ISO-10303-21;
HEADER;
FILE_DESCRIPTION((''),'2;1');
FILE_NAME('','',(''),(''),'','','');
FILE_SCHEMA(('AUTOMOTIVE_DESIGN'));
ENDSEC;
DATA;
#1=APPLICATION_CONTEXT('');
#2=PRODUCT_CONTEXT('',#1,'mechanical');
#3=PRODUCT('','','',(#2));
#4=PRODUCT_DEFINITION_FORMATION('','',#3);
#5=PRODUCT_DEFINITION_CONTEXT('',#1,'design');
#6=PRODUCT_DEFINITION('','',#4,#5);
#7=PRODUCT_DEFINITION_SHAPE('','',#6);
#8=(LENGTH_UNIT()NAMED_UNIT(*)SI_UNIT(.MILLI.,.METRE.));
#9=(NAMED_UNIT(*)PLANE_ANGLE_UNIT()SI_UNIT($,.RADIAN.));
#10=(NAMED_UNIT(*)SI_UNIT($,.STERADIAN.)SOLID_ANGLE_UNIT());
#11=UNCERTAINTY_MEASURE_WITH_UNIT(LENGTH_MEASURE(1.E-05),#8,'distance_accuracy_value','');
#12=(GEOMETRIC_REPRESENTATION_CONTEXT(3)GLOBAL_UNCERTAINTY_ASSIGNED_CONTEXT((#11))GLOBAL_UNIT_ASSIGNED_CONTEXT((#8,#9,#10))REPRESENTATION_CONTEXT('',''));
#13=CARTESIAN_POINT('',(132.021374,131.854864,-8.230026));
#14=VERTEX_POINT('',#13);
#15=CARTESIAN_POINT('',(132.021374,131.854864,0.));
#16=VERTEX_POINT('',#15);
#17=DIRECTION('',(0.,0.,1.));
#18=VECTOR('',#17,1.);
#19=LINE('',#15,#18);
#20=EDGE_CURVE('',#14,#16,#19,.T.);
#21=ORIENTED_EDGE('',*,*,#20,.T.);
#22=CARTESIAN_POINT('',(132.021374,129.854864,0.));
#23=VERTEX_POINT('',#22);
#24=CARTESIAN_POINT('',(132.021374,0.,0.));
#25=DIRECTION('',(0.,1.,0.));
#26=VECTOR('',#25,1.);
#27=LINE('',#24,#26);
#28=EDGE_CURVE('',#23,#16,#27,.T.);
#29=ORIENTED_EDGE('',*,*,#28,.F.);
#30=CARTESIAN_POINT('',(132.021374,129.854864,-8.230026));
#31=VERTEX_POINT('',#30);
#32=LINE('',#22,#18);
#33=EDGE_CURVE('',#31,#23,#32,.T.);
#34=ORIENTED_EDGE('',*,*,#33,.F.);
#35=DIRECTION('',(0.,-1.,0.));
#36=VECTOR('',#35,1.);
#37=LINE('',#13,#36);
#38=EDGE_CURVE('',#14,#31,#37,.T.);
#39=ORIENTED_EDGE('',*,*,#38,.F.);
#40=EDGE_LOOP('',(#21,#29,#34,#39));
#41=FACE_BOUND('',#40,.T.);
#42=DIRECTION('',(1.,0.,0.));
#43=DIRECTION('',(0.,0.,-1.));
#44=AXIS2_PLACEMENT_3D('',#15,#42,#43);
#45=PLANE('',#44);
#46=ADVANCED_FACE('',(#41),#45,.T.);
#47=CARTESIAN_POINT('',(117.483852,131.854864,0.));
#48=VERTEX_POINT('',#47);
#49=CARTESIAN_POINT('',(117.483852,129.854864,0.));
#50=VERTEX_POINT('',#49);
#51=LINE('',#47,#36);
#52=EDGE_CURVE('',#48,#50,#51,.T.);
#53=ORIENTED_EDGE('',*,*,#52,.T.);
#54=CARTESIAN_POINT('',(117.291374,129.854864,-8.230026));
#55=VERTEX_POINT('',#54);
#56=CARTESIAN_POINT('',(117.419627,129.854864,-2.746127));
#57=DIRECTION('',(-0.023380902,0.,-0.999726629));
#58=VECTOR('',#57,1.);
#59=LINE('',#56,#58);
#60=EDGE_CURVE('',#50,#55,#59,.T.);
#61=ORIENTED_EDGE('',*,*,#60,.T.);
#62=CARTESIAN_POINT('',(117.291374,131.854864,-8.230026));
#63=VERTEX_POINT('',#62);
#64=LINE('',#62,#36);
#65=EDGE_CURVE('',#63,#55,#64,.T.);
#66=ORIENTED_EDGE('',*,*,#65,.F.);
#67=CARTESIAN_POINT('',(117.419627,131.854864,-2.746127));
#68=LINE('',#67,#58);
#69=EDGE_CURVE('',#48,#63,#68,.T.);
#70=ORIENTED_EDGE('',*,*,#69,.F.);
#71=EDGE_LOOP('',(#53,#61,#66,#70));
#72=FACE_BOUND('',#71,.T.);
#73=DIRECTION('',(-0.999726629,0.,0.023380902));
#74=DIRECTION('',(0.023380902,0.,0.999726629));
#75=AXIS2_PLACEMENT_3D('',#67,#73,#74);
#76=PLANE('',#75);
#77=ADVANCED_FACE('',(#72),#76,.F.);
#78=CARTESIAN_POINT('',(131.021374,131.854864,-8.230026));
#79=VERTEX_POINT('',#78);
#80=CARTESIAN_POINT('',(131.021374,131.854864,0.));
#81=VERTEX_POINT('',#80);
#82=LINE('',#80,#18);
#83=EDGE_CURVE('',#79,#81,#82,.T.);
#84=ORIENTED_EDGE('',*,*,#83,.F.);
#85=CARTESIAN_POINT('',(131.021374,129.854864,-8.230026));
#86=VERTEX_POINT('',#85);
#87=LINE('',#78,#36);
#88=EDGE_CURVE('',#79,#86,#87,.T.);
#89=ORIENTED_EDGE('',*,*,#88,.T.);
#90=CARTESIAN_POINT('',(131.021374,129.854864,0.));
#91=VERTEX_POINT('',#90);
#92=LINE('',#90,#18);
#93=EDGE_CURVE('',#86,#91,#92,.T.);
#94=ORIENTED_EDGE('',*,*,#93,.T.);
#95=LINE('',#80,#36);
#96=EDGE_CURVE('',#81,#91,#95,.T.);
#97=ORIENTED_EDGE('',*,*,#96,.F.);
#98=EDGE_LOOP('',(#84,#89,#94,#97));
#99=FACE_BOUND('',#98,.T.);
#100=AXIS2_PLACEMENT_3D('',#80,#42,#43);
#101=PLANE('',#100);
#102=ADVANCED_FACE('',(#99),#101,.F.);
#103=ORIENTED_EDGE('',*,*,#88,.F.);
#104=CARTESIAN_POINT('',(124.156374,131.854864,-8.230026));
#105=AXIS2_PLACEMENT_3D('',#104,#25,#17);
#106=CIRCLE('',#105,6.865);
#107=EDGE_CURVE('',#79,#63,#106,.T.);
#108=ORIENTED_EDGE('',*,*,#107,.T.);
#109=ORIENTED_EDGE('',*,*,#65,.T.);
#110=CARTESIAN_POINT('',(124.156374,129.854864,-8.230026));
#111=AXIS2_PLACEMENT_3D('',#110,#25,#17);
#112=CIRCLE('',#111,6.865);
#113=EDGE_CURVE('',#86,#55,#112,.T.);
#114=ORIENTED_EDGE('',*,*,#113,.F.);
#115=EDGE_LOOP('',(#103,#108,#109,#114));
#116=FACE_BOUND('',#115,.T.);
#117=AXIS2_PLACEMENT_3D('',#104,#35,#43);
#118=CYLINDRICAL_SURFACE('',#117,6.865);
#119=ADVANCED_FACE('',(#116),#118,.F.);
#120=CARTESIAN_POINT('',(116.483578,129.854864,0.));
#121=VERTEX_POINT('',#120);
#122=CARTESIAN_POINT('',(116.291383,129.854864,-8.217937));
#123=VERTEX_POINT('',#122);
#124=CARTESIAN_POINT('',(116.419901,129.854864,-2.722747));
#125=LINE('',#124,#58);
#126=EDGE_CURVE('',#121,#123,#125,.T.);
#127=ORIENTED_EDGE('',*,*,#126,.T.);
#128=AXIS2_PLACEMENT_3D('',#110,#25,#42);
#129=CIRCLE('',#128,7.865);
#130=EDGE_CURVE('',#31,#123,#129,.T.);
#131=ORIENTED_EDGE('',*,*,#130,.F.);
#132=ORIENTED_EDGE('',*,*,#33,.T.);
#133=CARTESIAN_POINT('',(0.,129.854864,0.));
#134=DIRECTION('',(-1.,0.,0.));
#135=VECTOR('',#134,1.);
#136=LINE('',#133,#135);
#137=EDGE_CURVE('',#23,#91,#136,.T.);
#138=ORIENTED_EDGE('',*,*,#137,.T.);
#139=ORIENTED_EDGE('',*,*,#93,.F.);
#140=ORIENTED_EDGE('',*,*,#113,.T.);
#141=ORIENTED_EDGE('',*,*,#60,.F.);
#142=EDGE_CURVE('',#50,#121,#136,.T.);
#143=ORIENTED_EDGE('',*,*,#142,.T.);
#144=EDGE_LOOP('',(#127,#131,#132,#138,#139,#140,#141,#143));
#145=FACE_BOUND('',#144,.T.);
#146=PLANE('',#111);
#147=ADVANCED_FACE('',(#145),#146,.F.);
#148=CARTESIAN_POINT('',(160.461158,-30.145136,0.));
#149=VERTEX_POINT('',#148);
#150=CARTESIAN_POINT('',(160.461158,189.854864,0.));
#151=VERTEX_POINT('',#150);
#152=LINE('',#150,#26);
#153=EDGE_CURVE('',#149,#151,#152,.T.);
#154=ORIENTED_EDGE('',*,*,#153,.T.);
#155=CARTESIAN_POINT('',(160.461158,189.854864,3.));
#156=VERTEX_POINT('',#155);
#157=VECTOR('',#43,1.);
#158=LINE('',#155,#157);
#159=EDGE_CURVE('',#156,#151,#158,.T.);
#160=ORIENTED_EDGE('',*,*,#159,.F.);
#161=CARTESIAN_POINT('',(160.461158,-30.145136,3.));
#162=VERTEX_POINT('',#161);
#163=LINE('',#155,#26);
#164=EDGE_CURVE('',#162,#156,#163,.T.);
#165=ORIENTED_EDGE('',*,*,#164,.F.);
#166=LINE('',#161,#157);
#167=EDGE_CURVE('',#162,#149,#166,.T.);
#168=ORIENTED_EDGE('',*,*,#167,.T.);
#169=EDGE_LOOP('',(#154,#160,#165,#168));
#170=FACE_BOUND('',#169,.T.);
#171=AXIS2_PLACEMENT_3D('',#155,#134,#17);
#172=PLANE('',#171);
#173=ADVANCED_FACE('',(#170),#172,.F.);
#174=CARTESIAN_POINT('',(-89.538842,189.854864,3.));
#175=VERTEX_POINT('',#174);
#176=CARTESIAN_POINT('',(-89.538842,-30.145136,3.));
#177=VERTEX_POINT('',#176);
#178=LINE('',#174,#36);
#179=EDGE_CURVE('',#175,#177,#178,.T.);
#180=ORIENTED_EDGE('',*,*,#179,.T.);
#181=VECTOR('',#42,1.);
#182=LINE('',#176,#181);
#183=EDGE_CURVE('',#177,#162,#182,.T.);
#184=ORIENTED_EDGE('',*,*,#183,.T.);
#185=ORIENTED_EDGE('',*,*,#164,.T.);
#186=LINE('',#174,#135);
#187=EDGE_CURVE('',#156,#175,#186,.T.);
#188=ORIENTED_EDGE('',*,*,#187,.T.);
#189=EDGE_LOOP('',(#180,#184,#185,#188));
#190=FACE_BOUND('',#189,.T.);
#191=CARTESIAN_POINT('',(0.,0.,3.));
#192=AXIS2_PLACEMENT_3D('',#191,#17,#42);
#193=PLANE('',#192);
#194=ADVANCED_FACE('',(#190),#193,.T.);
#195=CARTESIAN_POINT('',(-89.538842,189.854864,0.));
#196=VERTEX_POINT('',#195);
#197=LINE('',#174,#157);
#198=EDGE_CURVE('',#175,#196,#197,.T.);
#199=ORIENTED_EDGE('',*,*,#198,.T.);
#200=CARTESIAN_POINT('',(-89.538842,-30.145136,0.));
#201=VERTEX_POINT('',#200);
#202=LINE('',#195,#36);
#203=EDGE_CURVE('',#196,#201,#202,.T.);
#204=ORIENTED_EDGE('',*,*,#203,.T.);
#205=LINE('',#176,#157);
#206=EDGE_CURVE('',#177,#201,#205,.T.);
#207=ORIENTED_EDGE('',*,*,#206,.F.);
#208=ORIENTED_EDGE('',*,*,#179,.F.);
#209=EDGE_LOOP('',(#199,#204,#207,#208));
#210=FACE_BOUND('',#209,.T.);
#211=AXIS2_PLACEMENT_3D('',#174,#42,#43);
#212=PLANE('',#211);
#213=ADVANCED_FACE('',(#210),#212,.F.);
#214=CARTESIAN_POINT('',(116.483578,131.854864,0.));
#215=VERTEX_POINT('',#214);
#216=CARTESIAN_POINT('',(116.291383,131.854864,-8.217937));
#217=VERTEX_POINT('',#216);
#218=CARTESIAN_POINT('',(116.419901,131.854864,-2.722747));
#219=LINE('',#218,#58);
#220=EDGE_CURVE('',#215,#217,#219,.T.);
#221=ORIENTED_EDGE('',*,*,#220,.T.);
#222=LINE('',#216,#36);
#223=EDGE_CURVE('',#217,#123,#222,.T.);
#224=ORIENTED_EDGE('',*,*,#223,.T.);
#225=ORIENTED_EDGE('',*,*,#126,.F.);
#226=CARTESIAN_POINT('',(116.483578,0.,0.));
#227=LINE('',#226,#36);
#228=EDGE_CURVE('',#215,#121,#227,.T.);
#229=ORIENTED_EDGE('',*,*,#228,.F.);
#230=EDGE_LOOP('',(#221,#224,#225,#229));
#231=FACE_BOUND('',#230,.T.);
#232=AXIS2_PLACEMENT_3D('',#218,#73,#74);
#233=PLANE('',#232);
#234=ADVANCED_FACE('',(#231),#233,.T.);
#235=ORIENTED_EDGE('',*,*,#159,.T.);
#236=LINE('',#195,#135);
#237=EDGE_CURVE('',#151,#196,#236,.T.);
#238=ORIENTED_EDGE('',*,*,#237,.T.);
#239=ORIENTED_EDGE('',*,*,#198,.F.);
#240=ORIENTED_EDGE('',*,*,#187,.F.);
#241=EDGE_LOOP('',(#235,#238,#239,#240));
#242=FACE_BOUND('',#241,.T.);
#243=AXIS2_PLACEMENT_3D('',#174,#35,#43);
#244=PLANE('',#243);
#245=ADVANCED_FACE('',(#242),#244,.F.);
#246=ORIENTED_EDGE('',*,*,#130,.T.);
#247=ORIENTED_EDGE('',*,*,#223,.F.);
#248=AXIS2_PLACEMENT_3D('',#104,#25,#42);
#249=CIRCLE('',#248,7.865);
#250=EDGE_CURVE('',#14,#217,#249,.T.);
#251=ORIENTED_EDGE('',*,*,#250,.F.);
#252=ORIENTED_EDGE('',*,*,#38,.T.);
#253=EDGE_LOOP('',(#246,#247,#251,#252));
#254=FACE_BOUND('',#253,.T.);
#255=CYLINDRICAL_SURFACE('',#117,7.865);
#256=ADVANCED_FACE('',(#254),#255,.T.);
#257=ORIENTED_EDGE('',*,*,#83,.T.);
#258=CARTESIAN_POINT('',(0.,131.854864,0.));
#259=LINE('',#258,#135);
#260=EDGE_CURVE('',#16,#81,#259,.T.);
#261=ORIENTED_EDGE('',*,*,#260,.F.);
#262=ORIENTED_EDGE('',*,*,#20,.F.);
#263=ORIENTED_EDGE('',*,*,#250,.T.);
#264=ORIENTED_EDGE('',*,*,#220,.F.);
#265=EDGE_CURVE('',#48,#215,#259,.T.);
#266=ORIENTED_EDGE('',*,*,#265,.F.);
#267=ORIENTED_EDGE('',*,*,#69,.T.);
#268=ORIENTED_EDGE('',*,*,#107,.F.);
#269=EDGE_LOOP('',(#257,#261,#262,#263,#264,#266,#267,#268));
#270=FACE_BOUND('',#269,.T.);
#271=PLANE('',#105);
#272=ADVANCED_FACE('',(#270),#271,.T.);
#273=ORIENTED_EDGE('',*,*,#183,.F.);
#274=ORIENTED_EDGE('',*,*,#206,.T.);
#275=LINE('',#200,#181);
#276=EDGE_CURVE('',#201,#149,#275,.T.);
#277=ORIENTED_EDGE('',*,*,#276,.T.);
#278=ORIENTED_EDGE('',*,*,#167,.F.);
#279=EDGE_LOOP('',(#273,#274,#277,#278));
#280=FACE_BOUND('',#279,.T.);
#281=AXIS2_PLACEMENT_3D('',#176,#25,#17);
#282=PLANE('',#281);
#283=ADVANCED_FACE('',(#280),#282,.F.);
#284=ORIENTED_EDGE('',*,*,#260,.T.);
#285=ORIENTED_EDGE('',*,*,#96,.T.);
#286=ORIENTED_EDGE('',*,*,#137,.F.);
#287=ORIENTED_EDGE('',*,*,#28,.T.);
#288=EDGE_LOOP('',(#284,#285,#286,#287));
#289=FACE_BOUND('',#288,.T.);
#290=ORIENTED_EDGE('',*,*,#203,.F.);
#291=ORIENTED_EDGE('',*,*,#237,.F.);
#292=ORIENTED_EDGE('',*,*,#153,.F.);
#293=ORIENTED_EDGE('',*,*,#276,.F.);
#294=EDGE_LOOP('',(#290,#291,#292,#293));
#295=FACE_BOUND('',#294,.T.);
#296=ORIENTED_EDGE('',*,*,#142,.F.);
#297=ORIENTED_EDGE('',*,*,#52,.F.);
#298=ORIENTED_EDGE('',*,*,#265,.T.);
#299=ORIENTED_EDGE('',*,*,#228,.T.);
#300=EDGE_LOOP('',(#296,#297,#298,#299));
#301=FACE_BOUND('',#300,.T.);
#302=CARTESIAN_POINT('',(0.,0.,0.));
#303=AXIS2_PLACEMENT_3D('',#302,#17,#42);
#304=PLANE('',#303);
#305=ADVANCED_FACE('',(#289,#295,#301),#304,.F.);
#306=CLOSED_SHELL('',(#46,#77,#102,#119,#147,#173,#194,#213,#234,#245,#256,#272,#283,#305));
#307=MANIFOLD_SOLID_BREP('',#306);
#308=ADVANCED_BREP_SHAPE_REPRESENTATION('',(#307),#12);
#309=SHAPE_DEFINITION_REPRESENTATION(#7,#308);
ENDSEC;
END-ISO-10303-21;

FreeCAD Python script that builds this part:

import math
import FreeCAD as App
import Part
import Sketcher

doc = App.newDocument("Part")
body = doc.addObject("PartDesign::Body", "Body")

# Sketch on XY plane
sketch1 = body.newObject("Sketcher::SketchObject", "Sketch")
sketch1.AttachmentSupport = (doc.getObject("XY_Plane"), [""])
sketch1.MapMode = "FlatFace"
sketch1.addGeometry([
    Part.LineSegment(App.Vector(-90, 190, 0), App.Vector(-90, -30, 0)),
    Part.LineSegment(App.Vector(-90, -30, 0), App.Vector(160, -30, 0)),
    Part.LineSegment(App.Vector(160, -30, 0), App.Vector(160, 190, 0)),
    Part.LineSegment(App.Vector(160, 190, 0), App.Vector(-90, 190, 0)),
], False)
sketch1.addConstraint([
    Sketcher.Constraint("Coincident", 0, 2, 1, 1),
    Sketcher.Constraint("Coincident", 1, 2, 2, 1),
    Sketcher.Constraint("Coincident", 2, 2, 3, 1),
    Sketcher.Constraint("Coincident", 3, 2, 0, 1),
    Sketcher.Constraint("Vertical", 0),
    Sketcher.Constraint("Horizontal", 1),
    Sketcher.Constraint("Vertical", 2),
    Sketcher.Constraint("Horizontal", 3),
    Sketcher.Constraint("DistanceX", 1, 1, 1, 2, 250.0),
    Sketcher.Constraint("DistanceY", 0, 2, 0, 1, 220.0),
    Sketcher.Constraint("DistanceX", 0, 2, -1, 1, 89.538842),
    Sketcher.Constraint("DistanceY", 0, 2, -1, 1, 30.145136),
])
pad1 = body.newObject("PartDesign::Pad", "Pad")
pad1.Profile = sketch1
pad1.Length = 3

# Sketch on XZ plane
sketch2 = body.newObject("Sketcher::SketchObject", "Sketch001")
sketch2.AttachmentSupport = (doc.getObject("XZ_Plane"), [""])
sketch2.MapMode = "FlatFace"
sketch2.AttachmentOffset = App.Placement(App.Vector(0, 0, -129.854864), App.Rotation())
sketch2.addGeometry([
    Part.LineSegment(App.Vector(116.5, 0, 0), App.Vector(117.5, 0, 0)),  # 0
    Part.LineSegment(App.Vector(117.5, 0, 0), App.Vector(117.3, -8.2, 0)),  # 1
    Part.ArcOfCircle(Part.Circle(App.Vector(124.2, -8.2, 0), App.Vector(0, 0, 1), 6.9), math.radians(180), math.radians(360)),  # 2
    Part.LineSegment(App.Vector(131, -8.2, 0), App.Vector(131, 0, 0)),  # 3
    Part.LineSegment(App.Vector(131, 0, 0), App.Vector(132, 0, 0)),  # 4
    Part.LineSegment(App.Vector(132, 0, 0), App.Vector(132, -8.2, 0)),  # 5
    Part.ArcOfCircle(Part.Circle(App.Vector(124.2, -8.2, 0), App.Vector(0, 0, 1), 7.9), math.radians(177), math.radians(360)),  # 6
    Part.LineSegment(App.Vector(116.3, -7.9, 0), App.Vector(116.5, 0, 0)),  # 7
], False)
sketch2.addConstraint([
    Sketcher.Constraint("Coincident", 0, 2, 1, 1),
    Sketcher.Constraint("Coincident", 1, 2, 2, 1),
    Sketcher.Constraint("Tangent", 2, 2, 3, 1),
    Sketcher.Constraint("Coincident", 3, 2, 4, 1),
    Sketcher.Constraint("Coincident", 4, 2, 5, 1),
    Sketcher.Constraint("Tangent", 5, 2, 6, 2),
    Sketcher.Constraint("Coincident", 6, 1, 7, 1),
    Sketcher.Constraint("Coincident", 7, 2, 0, 1),
    Sketcher.Constraint("Vertical", 3),
    Sketcher.Constraint("Horizontal", 4),
    Sketcher.Constraint("Vertical", 5),
    Sketcher.Constraint("Coincident", 6, 3, 2, 3),
    Sketcher.Constraint("PointOnObject", 0, 2, -1),
    Sketcher.Constraint("PointOnObject", 3, 2, -1),
    Sketcher.Constraint("Perpendicular", 0, 1),
    Sketcher.Constraint("Parallel", 1, 7),
    Sketcher.Constraint("Horizontal", 6, 3, 1, 2),
    Sketcher.Constraint("DistanceX", 4, 1, 4, 2, 1.0),
    Sketcher.Constraint("Distance", 0, 1.0),
    Sketcher.Constraint("Radius", 2, 6.865),
    Sketcher.Constraint("DistanceY", 3, 1, 3, 2, 8.230026),
    Sketcher.Constraint("DistanceX", -1, 1, 0, 2, 117.483852),
    Sketcher.Constraint("DistanceY", -1, 1, 7, 2, 0.023381),
])
pad2 = body.newObject("PartDesign::Pad", "Pad001")
pad2.Profile = sketch2
pad2.Length = 2
pad2.Reversed = True

doc.recompute()
